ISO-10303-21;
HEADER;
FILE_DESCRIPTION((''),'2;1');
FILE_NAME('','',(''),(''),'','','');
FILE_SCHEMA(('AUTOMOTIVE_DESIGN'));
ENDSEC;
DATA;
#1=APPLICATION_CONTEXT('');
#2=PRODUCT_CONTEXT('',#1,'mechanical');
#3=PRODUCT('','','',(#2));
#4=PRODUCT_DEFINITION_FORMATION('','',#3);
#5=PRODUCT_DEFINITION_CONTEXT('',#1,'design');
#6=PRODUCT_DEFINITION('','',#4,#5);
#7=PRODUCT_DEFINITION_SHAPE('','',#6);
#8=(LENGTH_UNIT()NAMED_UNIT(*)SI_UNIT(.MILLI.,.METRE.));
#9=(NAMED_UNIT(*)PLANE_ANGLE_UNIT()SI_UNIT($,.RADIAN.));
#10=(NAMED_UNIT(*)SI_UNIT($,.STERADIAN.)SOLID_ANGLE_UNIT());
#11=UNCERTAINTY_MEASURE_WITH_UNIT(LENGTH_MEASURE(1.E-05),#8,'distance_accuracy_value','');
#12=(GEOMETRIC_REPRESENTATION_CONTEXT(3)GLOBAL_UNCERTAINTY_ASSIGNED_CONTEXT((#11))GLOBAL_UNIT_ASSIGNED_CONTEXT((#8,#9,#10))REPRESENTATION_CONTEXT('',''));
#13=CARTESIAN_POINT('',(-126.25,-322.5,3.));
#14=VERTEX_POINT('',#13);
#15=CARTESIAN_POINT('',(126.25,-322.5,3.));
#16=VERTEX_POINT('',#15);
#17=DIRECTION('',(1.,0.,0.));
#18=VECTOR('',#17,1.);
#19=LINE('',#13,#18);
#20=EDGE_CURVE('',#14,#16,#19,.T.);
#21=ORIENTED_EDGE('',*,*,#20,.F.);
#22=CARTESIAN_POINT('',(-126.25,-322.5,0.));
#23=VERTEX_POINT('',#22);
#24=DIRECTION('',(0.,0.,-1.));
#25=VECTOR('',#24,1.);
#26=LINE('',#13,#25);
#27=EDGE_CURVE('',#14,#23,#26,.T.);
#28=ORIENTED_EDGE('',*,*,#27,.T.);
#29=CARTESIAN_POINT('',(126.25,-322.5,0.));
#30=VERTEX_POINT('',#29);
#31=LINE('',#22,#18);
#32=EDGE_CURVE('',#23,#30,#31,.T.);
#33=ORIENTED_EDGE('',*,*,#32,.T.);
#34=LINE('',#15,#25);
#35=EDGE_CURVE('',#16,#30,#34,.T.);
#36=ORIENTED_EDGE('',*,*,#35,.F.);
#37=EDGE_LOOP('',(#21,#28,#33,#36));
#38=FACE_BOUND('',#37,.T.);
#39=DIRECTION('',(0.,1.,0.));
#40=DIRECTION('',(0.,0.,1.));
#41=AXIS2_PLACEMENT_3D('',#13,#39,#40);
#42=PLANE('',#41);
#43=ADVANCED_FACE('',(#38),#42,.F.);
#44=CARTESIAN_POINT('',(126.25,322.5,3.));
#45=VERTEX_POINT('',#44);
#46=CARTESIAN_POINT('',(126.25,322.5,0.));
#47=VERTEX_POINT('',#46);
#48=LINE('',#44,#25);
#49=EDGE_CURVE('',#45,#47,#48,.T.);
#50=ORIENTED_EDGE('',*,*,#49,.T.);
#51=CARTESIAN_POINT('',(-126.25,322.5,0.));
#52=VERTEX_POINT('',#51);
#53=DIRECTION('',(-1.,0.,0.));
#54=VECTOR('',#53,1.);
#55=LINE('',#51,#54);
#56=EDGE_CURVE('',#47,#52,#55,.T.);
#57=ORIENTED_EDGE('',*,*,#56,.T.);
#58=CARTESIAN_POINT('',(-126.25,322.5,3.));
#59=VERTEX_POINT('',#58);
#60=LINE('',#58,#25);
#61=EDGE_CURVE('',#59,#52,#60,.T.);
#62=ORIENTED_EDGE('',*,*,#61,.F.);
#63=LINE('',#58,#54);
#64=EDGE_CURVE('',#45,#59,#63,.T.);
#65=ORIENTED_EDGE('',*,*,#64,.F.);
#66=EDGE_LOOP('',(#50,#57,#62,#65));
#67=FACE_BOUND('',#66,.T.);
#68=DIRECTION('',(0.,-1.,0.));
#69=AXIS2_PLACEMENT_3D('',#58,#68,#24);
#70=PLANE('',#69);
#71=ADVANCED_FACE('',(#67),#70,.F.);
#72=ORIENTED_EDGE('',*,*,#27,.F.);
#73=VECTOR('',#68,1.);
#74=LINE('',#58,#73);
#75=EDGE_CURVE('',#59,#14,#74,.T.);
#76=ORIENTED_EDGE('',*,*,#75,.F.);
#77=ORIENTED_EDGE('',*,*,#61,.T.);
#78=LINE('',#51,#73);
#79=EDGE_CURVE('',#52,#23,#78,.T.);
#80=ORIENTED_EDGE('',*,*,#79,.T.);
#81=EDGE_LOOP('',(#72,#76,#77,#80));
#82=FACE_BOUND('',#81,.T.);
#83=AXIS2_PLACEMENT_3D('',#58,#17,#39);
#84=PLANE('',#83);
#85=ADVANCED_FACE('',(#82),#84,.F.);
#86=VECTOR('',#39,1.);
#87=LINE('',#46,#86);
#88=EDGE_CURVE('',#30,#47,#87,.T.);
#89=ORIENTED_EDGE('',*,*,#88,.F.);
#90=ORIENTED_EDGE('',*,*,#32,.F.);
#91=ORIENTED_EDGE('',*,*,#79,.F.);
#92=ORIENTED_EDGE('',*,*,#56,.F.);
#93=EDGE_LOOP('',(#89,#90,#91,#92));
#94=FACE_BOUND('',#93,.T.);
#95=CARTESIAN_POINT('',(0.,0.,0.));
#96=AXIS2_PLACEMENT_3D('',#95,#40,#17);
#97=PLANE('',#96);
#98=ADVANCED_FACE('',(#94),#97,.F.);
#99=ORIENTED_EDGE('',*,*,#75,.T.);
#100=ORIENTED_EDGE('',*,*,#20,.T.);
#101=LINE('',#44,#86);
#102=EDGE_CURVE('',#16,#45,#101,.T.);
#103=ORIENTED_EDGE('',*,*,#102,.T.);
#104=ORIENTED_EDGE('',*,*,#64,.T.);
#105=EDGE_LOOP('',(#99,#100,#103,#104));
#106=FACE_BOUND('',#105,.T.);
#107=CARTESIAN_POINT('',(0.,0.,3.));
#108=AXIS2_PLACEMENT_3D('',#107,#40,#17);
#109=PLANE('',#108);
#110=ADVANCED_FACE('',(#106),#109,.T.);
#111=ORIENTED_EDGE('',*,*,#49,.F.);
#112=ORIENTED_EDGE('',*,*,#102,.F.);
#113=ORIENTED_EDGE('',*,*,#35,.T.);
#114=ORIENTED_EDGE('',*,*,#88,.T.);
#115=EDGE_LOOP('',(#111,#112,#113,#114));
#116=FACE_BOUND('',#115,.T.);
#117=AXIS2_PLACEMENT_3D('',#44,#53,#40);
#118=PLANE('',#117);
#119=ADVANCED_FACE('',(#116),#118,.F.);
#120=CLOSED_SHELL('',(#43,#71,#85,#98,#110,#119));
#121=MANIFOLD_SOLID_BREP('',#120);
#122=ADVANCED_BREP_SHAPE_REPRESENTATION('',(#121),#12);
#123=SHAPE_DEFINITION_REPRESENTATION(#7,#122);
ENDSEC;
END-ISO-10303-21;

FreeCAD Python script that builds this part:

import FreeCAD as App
import Part
import Sketcher

doc = App.newDocument("Part")
body = doc.addObject("PartDesign::Body", "Body")

sketch1 = body.newObject("Sketcher::SketchObject", "Sketch")
sketch1.AttachmentSupport = (doc.getObject("XY_Plane"), [""])
sketch1.MapMode = "FlatFace"
sketch1.addGeometry(Part.LineSegment(App.Vector(-126.25, 322.5, 0), App.Vector(-126.25, -322.5, 0)), False)
sketch1.addGeometry(Part.LineSegment(App.Vector(-126.25, -322.5, 0), App.Vector(126.25, -322.5, 0)), False)
sketch1.addGeometry(Part.LineSegment(App.Vector(126.25, -322.5, 0), App.Vector(126.25, 322.5, 0)), False)
sketch1.addGeometry(Part.LineSegment(App.Vector(126.25, 322.5, 0), App.Vector(-126.25, 322.5, 0)), False)
sketch1.addConstraint(Sketcher.Constraint("Coincident", 0, 2, 1, 1))
sketch1.addConstraint(Sketcher.Constraint("Coincident", 1, 2, 2, 1))
sketch1.addConstraint(Sketcher.Constraint("Coincident", 2, 2, 3, 1))
sketch1.addConstraint(Sketcher.Constraint("Coincident", 3, 2, 0, 1))
sketch1.addConstraint(Sketcher.Constraint("Vertical", 0))
sketch1.addConstraint(Sketcher.Constraint("Horizontal", 1))
sketch1.addConstraint(Sketcher.Constraint("Vertical", 2))
sketch1.addConstraint(Sketcher.Constraint("Horizontal", 3))
sketch1.addConstraint(Sketcher.Constraint("Symmetric", 0, 2, 2, 2, -1, 1))
sketch1.addConstraint(Sketcher.Constraint("DistanceY", 0, 2, 0, 1, 645.0))
sketch1.addConstraint(Sketcher.Constraint("DistanceX", 1, 1, 1, 2, 252.5))
pad1 = body.newObject("PartDesign::Pad", "Pad")
pad1.Profile = sketch1
pad1.Length = 3

doc.recompute()
